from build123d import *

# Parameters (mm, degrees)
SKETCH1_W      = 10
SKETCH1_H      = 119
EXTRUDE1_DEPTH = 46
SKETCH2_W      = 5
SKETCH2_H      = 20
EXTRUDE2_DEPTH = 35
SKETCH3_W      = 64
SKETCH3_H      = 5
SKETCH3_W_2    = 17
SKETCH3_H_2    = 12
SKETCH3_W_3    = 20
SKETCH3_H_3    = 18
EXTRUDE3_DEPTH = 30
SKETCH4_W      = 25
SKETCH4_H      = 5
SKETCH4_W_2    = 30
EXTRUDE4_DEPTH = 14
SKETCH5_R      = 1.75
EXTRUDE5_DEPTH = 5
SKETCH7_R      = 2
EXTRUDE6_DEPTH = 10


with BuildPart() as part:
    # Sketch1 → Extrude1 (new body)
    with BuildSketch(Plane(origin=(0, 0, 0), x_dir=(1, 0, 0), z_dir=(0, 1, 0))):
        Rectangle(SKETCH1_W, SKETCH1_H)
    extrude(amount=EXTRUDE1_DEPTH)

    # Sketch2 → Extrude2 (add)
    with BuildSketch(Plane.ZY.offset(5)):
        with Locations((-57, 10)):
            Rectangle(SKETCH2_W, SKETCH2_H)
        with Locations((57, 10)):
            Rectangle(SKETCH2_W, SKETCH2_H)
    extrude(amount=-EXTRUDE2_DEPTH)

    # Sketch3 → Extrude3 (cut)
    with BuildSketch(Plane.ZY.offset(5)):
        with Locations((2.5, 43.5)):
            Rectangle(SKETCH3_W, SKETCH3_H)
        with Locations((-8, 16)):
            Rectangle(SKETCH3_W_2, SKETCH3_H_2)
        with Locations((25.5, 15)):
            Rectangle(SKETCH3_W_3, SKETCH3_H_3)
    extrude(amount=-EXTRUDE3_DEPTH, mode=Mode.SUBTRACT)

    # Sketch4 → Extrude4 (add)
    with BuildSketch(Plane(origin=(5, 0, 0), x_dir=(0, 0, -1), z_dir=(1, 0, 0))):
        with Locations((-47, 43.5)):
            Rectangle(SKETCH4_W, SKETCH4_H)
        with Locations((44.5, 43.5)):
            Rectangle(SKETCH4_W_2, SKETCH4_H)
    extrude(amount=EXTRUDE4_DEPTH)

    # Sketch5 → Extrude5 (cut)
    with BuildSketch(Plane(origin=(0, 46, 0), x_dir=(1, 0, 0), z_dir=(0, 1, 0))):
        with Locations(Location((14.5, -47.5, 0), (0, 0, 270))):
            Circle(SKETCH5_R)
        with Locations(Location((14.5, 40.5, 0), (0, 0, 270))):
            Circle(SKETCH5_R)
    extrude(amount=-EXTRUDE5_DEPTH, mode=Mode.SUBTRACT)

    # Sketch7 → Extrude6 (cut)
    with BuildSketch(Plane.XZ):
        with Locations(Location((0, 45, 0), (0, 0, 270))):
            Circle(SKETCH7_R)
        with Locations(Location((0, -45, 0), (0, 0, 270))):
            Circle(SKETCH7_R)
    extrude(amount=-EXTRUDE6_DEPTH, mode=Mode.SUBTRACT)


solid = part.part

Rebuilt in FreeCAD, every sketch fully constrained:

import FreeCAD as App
import Part
import Sketcher
from FreeCAD import Vector


def add_polygon(sketch, points):
    """Adds a closed chain of lines whose ends are joined by coincident constraints."""
    first, n = sketch.GeometryCount, len(points)
    for a, b in zip(points, points[1:] + points[:1]):
        sketch.addGeometry(Part.LineSegment(App.Vector(*a, 0), App.Vector(*b, 0)), False)
    for i in range(n):
        sketch.addConstraint(Sketcher.Constraint("Coincident", first + i, 2, first + (i + 1) % n, 1))

doc = App.newDocument("Part")
params = doc.addObject("Spreadsheet::Sheet", "Params")
for row, (alias, value) in enumerate([
    ("sketch1_width", "10 mm"),
    ("sketch1_height", "119 mm"),
    ("pad1_length", "46 mm"),
    ("sketch2_width", "20 mm"),
    ("sketch2_height", "5 mm"),
    ("pad2_length", "35 mm"),
    ("sketch3_width", "5 mm"),
    ("sketch3_width2", "12 mm"),
    ("sketch3_width3", "18 mm"),
    ("sketch3_height", "64 mm"),
    ("sketch3_height2", "17 mm"),
    ("pocket1_length", "30 mm"),
    ("sketch4_width", "5 mm"),
    ("sketch4_height", "25 mm"),
    ("sketch4_height2", "30 mm"),
    ("pad3_length", "14 mm"),
    ("sketch5_diameter", "3.5 mm"),
    ("pocket2_length", "5 mm"),
    ("sketch6_diameter", "4 mm"),
    ("pocket3_length", "10 mm"),
], start=1):
    params.set(f"A{row}", alias)
    params.set(f"B{row}", "=" + value)
    params.setAlias(f"B{row}", alias)

body = doc.addObject("PartDesign::Body", "Body")

sketch1 = doc.addObject("Sketcher::SketchObject", "Sketch")
body.addObject(sketch1)
sketch1.AttachmentSupport = (doc.XZ_Plane, [""])
sketch1.MapMode = "FlatFace"
add_polygon(sketch1, [(-5, -60), (-5, 60), (5, 60), (5, -60)])
sketch1.addConstraint([
    Sketcher.Constraint("Vertical", 0),
    Sketcher.Constraint("Horizontal", 1),
    Sketcher.Constraint("Vertical", 2),
    Sketcher.Constraint("Horizontal", 3),
    Sketcher.Constraint("Symmetric", 0, 2, 2, 2, -1, 1),
    Sketcher.Constraint("DistanceX", 1, 1, 1, 2, 10.0),
    Sketcher.Constraint("DistanceY", 0, 1, 0, 2, 119.0),
])
sketch1.setExpression("Constraints[9]", "Params.sketch1_width")
sketch1.setExpression("Constraints[10]", "Params.sketch1_height")
pad1 = doc.addObject("PartDesign::Pad", "Pad")
body.addObject(pad1)
pad1.Profile = sketch1
pad1.setExpression("Length", "Params.pad1_length")
pad1.Reversed = True

sketch2 = doc.addObject("Sketcher::SketchObject", "Sketch001")
body.addObject(sketch2)
sketch2.AttachmentSupport = (doc.YZ_Plane, [""])
sketch2.MapMode = "FlatFace"
sketch2.AttachmentOffset = App.Placement(Vector(0, 0, -5), App.Rotation())
add_polygon(sketch2, [(20, -60), (0, -60), (0, -54), (20, -54)])
add_polygon(sketch2, [(20, 54), (0, 54), (0, 60), (20, 60)])
sketch2.addConstraint([
    Sketcher.Constraint("Horizontal", 0),
    Sketcher.Constraint("Vertical", 1),
    Sketcher.Constraint("Horizontal", 2),
    Sketcher.Constraint("Vertical", 3),
    Sketcher.Constraint("Horizontal", 4),
    Sketcher.Constraint("Vertical", 5),
    Sketcher.Constraint("Horizontal", 6),
    Sketcher.Constraint("Vertical", 7),
    Sketcher.Constraint("Symmetric", 1, 2, 4, 2, -1, 1),
    Sketcher.Constraint("Symmetric", 0, 2, 5, 2, -1),
    Sketcher.Constraint("Vertical", 3, 2, 6, 2),
    Sketcher.Constraint("DistanceX", 0, 2, 0, 1, 20.0),
    Sketcher.Constraint("DistanceY", 1, 1, 1, 2, 5.0),
    Sketcher.Constraint("DistanceY", 1, 2, 4, 2, 109.0),
])
sketch2.setExpression("Constraints[19]", "Params.sketch2_width")
sketch2.setExpression("Constraints[20]", "Params.sketch2_height")
pad2 = doc.addObject("PartDesign::Pad", "Pad001")
body.addObject(pad2)
pad2.Profile = sketch2
pad2.setExpression("Length", "Params.pad2_length")

sketch3 = doc.addObject("Sketcher::SketchObject", "Sketch002")
body.addObject(sketch3)
sketch3.AttachmentSupport = (doc.YZ_Plane, [""])
sketch3.MapMode = "FlatFace"
sketch3.AttachmentOffset = App.Placement(Vector(0, 0, -5), App.Rotation())
add_polygon(sketch3, [(46, -30), (41, -30), (41, 34), (46, 34)])
add_polygon(sketch3, [(22, -16), (10, -16), (10, 0), (22, 0)])
add_polygon(sketch3, [(24, 16), (6, 16), (6, 36), (24, 36)])
sketch3.addConstraint([
    Sketcher.Constraint("Horizontal", 0),
    Sketcher.Constraint("Vertical", 1),
    Sketcher.Constraint("Horizontal", 2),
    Sketcher.Constraint("Vertical", 3),
    Sketcher.Constraint("Horizontal", 4),
    Sketcher.Constraint("Vertical", 5),
    Sketcher.Constraint("Horizontal", 6),
    Sketcher.Constraint("Vertical", 7),
    Sketcher.Constraint("Horizontal", 8),
    Sketcher.Constraint("Vertical", 9),
    Sketcher.Constraint("Horizontal", 10),
    Sketcher.Constraint("Vertical", 11),
    Sketcher.Constraint("DistanceX", 0, 2, 0, 1, 5.0),
    Sketcher.Constraint("DistanceX", 4, 2, 4, 1, 12.0),
    Sketcher.Constraint("DistanceX", 8, 2, 8, 1, 18.0),
    Sketcher.Constraint("DistanceY", 1, 1, 1, 2, 64.0),
    Sketcher.Constraint("DistanceY", 5, 1, 5, 2, 17.0),
    Sketcher.Constraint("DistanceY", 9, 1, 9, 2, 20.0),
    Sketcher.Constraint("DistanceX", -1, 1, 0, 2, 41.0),
    Sketcher.Constraint("DistanceX", -1, 1, 4, 2, 10.0),
    Sketcher.Constraint("DistanceX", -1, 1, 8, 2, 6.0),
    Sketcher.Constraint("DistanceY", 0, 2, 4, 2, 13.0),
    Sketcher.Constraint("DistanceY", 5, 2, 8, 2, 15.0),
    Sketcher.Constraint("DistanceY", 0, 2, -1, 1, 29.5),
])
sketch3.setExpression("Constraints[24]", "Params.sketch3_width")
sketch3.setExpression("Constraints[25]", "Params.sketch3_width2")
sketch3.setExpression("Constraints[26]", "Params.sketch3_width3")
sketch3.setExpression("Constraints[27]", "Params.sketch3_height")
sketch3.setExpression("Constraints[28]", "Params.sketch3_height2")
pocket1 = doc.addObject("PartDesign::Pocket", "Pocket")
body.addObject(pocket1)
pocket1.Profile = sketch3
pocket1.setExpression("Length", "Params.pocket1_length")
pocket1.Reversed = True

sketch4 = doc.addObject("Sketcher::SketchObject", "Sketch003")
body.addObject(sketch4)
sketch4.AttachmentSupport = (doc.YZ_Plane, [""])
sketch4.MapMode = "FlatFace"
sketch4.AttachmentOffset = App.Placement(Vector(0, 0, 5), App.Rotation())
add_polygon(sketch4, [(46, 60), (41, 60), (41, 34), (46, 34)])
add_polygon(sketch4, [(46, -30), (41, -30), (41, -60), (46, -60)])
sketch4.addConstraint([
    Sketcher.Constraint("Horizontal", 0),
    Sketcher.Constraint("Vertical", 1),
    Sketcher.Constraint("Horizontal", 2),
    Sketcher.Constraint("Vertical", 3),
    Sketcher.Constraint("Horizontal", 4),
    Sketcher.Constraint("Vertical", 5),
    Sketcher.Constraint("Horizontal", 6),
    Sketcher.Constraint("Vertical", 7),
    Sketcher.Constraint("Symmetric", 0, 2, 5, 2, -1),
    Sketcher.Constraint("Vertical", 3, 2, 6, 2),
    Sketcher.Constraint("DistanceX", 0, 2, 0, 1, 5.0),
    Sketcher.Constraint("DistanceY", 1, 2, 1, 1, 25.0),
    Sketcher.Constraint("DistanceY", 5, 2, 5, 1, 30.0),
    Sketcher.Constraint("DistanceX", -1, 1, 0, 2, 41.0),
    Sketcher.Constraint("DistanceY", 4, 2, 1, 2, 64.0),
])
sketch4.setExpression("Constraints[18]", "Params.sketch4_width")
sketch4.setExpression("Constraints[19]", "Params.sketch4_height")
sketch4.setExpression("Constraints[20]", "Params.sketch4_height2")
pad3 = doc.addObject("PartDesign::Pad", "Pad002")
body.addObject(pad3)
pad3.Profile = sketch4
pad3.setExpression("Length", "Params.pad3_length")

sketch5 = doc.addObject("Sketcher::SketchObject", "Sketch004")
body.addObject(sketch5)
sketch5.AttachmentSupport = (doc.XZ_Plane, [""])
sketch5.MapMode = "FlatFace"
sketch5.AttachmentOffset = App.Placement(Vector(0, 0, -46), App.Rotation())
sketch5.addGeometry([
    Part.Circle(Vector(14.5, 47.5, 0), Vector(0, 0, 1), 1.8),
    Part.Circle(Vector(14.5, -40.5, 0), Vector(0, 0, 1), 1.8),
], False)
sketch5.addConstraint([
    Sketcher.Constraint("Equal", 0, 1),
    Sketcher.Constraint("Vertical", 0, 3, 1, 3),
    Sketcher.Constraint("Diameter", 0, 3.5),
    Sketcher.Constraint("DistanceY", 1, 3, 0, 3, 88.0),
    Sketcher.Constraint("DistanceX", -1, 1, 0, 3, 14.5),
    Sketcher.Constraint("DistanceY", -1, 1, 0, 3, 47.5),
])
sketch5.setExpression("Constraints[2]", "Params.sketch5_diameter")
pocket2 = doc.addObject("PartDesign::Pocket", "Pocket001")
body.addObject(pocket2)
pocket2.Profile = sketch5
pocket2.setExpression("Length", "Params.pocket2_length")
pocket2.Reversed = True

sketch6 = doc.addObject("Sketcher::SketchObject", "Sketch005")
body.addObject(sketch6)
sketch6.AttachmentSupport = (doc.XZ_Plane, [""])
sketch6.MapMode = "FlatFace"
sketch6.addGeometry([
    Part.Circle(Vector(0, 45, 0), Vector(0, 0, 1), 2),
    Part.Circle(Vector(0, -45, 0), Vector(0, 0, 1), 2),
], False)
sketch6.addConstraint([
    Sketcher.Constraint("Equal", 0, 1),
    Sketcher.Constraint("Symmetric", 0, 3, 1, 3, -1, 1),
    Sketcher.Constraint("PointOnObject", 0, 3, -2),
    Sketcher.Constraint("Diameter", 0, 4.0),
    Sketcher.Constraint("DistanceY", -1, 1, 0, 3, 45.0),
])
sketch6.setExpression("Constraints[3]", "Params.sketch6_diameter")
pocket3 = doc.addObject("PartDesign::Pocket", "Pocket002")
body.addObject(pocket3)
pocket3.Profile = sketch6
pocket3.setExpression("Length", "Params.pocket3_length")

doc.recompute()
